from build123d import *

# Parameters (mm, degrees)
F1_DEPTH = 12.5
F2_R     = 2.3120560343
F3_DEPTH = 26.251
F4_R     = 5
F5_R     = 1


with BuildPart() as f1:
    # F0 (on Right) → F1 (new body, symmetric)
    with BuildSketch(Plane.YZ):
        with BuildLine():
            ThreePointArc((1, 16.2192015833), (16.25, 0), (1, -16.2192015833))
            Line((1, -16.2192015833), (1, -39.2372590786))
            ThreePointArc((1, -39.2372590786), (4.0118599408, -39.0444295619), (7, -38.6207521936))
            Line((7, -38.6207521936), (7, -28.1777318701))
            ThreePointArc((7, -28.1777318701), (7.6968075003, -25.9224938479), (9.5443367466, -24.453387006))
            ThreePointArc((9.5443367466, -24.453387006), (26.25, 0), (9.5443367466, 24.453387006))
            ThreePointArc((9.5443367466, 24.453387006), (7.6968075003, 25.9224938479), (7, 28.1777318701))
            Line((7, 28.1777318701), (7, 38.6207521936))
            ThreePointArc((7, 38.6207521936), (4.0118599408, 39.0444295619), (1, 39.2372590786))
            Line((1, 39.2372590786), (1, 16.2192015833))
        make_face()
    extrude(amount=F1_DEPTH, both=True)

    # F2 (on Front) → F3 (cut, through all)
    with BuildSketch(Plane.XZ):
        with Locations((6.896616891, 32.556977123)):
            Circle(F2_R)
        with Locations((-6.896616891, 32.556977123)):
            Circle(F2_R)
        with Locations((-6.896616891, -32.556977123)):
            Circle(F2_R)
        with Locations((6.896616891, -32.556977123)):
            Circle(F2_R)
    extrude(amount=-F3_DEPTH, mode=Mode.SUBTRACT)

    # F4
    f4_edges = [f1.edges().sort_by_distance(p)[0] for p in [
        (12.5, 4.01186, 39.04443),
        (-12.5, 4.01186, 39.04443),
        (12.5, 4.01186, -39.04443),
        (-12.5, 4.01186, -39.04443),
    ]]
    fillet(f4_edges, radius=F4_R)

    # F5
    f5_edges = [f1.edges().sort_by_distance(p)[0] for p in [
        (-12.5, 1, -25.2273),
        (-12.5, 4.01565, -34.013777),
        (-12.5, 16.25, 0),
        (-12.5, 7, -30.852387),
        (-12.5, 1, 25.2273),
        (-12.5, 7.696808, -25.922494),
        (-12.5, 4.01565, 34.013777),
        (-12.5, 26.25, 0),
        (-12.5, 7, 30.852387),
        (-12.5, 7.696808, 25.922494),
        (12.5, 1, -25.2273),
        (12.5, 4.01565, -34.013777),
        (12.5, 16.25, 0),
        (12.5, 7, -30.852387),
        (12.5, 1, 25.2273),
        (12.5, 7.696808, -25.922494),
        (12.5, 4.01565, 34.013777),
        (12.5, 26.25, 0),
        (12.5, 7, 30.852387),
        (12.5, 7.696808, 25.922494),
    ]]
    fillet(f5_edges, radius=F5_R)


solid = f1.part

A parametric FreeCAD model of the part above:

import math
import FreeCAD as App
import Part
import Sketcher


def edges_at(feature, points):
    """Names of the edges that pass closest to the given points."""
    edges = feature.Shape.Edges
    near = lambda p: min(range(len(edges)), key=lambda i: edges[i].distToShape(Part.Vertex(*p))[0])
    return sorted({f"Edge{near(p) + 1}" for p in points})

doc = App.newDocument("Part")
params = doc.addObject("Spreadsheet::Sheet", "Params")
for row, (alias, value) in enumerate([
    ("sketch1_radius", "16.25 mm"),
    ("sketch1_radius2", "39.25 mm"),
    ("sketch1_radius3", "26.25 mm"),
    ("pad1_length", "25 mm"),
    ("fillet_radius", "5 mm"),
    ("fillet2_radius", "1 mm"),
], start=1):
    params.set(f"A{row}", alias)
    params.set(f"B{row}", "=" + value)
    params.setAlias(f"B{row}", alias)

body = doc.addObject("PartDesign::Body", "Body")

sketch1 = body.newObject("Sketcher::SketchObject", "Sketch")
sketch1.AttachmentSupport = (doc.getObject("YZ_Plane"), [""])
sketch1.MapMode = "FlatFace"
sketch1.addGeometry([
    Part.ArcOfCircle(Part.Circle(App.Vector(0, 0, 0), App.Vector(0, 0, 1), 16.2), math.radians(-86), math.radians(86)),
    Part.LineSegment(App.Vector(1, -16.2, 0), App.Vector(1, -39.2, 0)),
    Part.ArcOfCircle(Part.Circle(App.Vector(0, 0, 0), App.Vector(0, 0, 1), 39.3), math.radians(-88.54), math.radians(-79.73)),
    Part.LineSegment(App.Vector(7, -38.6, 0), App.Vector(7, -28.2, 0)),
    Part.ArcOfCircle(Part.Circle(App.Vector(11, -28.2, 0), App.Vector(0, 0, 1), 4), math.radians(111), math.radians(180)),
    Part.ArcOfCircle(Part.Circle(App.Vector(0, 0, 0), App.Vector(0, 0, 1), 26.2), math.radians(-69), math.radians(69)),
    Part.ArcOfCircle(Part.Circle(App.Vector(11, 28.2, 0), App.Vector(0, 0, 1), 4), math.radians(180), math.radians(249)),
    Part.LineSegment(App.Vector(7, 28.2, 0), App.Vector(7, 38.6, 0)),
    Part.ArcOfCircle(Part.Circle(App.Vector(0, 0, 0), App.Vector(0, 0, 1), 39.3), math.radians(79.73), math.radians(88.54)),
    Part.LineSegment(App.Vector(1, 39.2, 0), App.Vector(1, 16.2, 0)),
], False)
sketch1.addConstraint([
    Sketcher.Constraint("Coincident", 0, 1, 1, 1),
    Sketcher.Constraint("Coincident", 1, 2, 2, 1),
    Sketcher.Constraint("Coincident", 2, 2, 3, 1),
    Sketcher.Constraint("Tangent", 3, 2, 4, 2),
    Sketcher.Constraint("Tangent", 4, 1, 5, 1),
    Sketcher.Constraint("Tangent", 5, 2, 6, 2),
    Sketcher.Constraint("Tangent", 6, 1, 7, 1),
    Sketcher.Constraint("Coincident", 7, 2, 8, 1),
    Sketcher.Constraint("Coincident", 8, 2, 9, 1),
    Sketcher.Constraint("Coincident", 9, 2, 0, 2),
    Sketcher.Constraint("Vertical", 1),
    Sketcher.Constraint("Vertical", 3),
    Sketcher.Constraint("Vertical", 7),
    Sketcher.Constraint("Vertical", 9),
    Sketcher.Constraint("Coincident", 0, 3, -1, 1),
    Sketcher.Constraint("Coincident", 2, 3, -1, 1),
    Sketcher.Constraint("Coincident", 5, 3, -1, 1),
    Sketcher.Constraint("Coincident", 8, 3, -1, 1),
    Sketcher.Constraint("Equal", 4, 6),
    Sketcher.Constraint("Equal", 2, 8),
    Sketcher.Constraint("Vertical", 4, 3, 6, 3),
    Sketcher.Constraint("Vertical", 1, 2, 8, 2),
    Sketcher.Constraint("Radius", 0, 16.25),
    Sketcher.Constraint("Radius", 2, 39.25),
    Sketcher.Constraint("Radius", 5, 26.25),
    Sketcher.Constraint("DistanceX", -1, 1, 0, 1, 1.0),
    Sketcher.Constraint("DistanceX", -1, 1, 2, 2, 7.0),
    Sketcher.Constraint("Radius", 4, 3.997976),
])
sketch1.setExpression("Constraints[22]", "Params.sketch1_radius")
sketch1.setExpression("Constraints[23]", "Params.sketch1_radius2")
sketch1.setExpression("Constraints[24]", "Params.sketch1_radius3")
pad1 = body.newObject("PartDesign::Pad", "Pad")
pad1.Profile = sketch1
pad1.setExpression("Length", "Params.pad1_length")
pad1.Midplane = True

sketch2 = body.newObject("Sketcher::SketchObject", "Sketch001")
sketch2.AttachmentSupport = (doc.getObject("XZ_Plane"), [""])
sketch2.MapMode = "FlatFace"
sketch2.addGeometry([
    Part.Circle(App.Vector(6.9, 32.6, 0), App.Vector(0, 0, 1), 2.3),
    Part.Circle(App.Vector(-6.9, 32.6, 0), App.Vector(0, 0, 1), 2.3),
    Part.Circle(App.Vector(-6.9, -32.6, 0), App.Vector(0, 0, 1), 2.3),
    Part.Circle(App.Vector(6.9, -32.6, 0), App.Vector(0, 0, 1), 2.3),
], False)
sketch2.addConstraint([
    Sketcher.Constraint("Equal", 0, 1),
    Sketcher.Constraint("Equal", 1, 2),
    Sketcher.Constraint("Equal", 2, 3),
    Sketcher.Constraint("Symmetric", 0, 3, 2, 3, -1, 1),
    Sketcher.Constraint("Symmetric", 1, 3, 3, 3, -1, 1),
    Sketcher.Constraint("Symmetric", 0, 3, 1, 3, -2),
    Sketcher.Constraint("Diameter", 0, 4.624112),
    Sketcher.Constraint("DistanceX", -1, 1, 0, 3, 6.896617),
    Sketcher.Constraint("DistanceY", -1, 1, 0, 3, 32.556977),
])
pocket1 = body.newObject("PartDesign::Pocket", "Pocket")
pocket1.Profile = sketch2
pocket1.Type = "ThroughAll"
doc.recompute()

fillet = body.newObject("PartDesign::Fillet", "Fillet")
fillet.Base = (pocket1, edges_at(pocket1, [
    (12.5, 4.012, 39.044),
    (-12.5, 4.012, 39.044),
    (12.5, 4.012, -39.044),
    (-12.5, 4.012, -39.044),
]))
fillet.setExpression("Radius", "Params.fillet_radius")
doc.recompute()

fillet2 = body.newObject("PartDesign::Fillet", "Fillet001")
fillet2.Base = (fillet, edges_at(fillet, [
    (-12.5, 1, -25.227),
    (-12.5, 4.016, -34.014),
    (-12.5, 16.25, 0),
    (-12.5, 7, -30.852),
    (-12.5, 1, 25.227),
    (-12.5, 7.697, -25.922),
    (-12.5, 4.016, 34.014),
    (-12.5, 26.25, 0),
    (-12.5, 7, 30.852),
    (-12.5, 7.697, 25.922),
    (12.5, 1, -25.227),
    (12.5, 4.016, -34.014),
    (12.5, 16.25, 0),
    (12.5, 7, -30.852),
    (12.5, 1, 25.227),
    (12.5, 7.697, -25.922),
    (12.5, 4.016, 34.014),
    (12.5, 26.25, 0),
    (12.5, 7, 30.852),
    (12.5, 7.697, 25.922),
]))
fillet2.setExpression("Radius", "Params.fillet2_radius")

doc.recompute()
